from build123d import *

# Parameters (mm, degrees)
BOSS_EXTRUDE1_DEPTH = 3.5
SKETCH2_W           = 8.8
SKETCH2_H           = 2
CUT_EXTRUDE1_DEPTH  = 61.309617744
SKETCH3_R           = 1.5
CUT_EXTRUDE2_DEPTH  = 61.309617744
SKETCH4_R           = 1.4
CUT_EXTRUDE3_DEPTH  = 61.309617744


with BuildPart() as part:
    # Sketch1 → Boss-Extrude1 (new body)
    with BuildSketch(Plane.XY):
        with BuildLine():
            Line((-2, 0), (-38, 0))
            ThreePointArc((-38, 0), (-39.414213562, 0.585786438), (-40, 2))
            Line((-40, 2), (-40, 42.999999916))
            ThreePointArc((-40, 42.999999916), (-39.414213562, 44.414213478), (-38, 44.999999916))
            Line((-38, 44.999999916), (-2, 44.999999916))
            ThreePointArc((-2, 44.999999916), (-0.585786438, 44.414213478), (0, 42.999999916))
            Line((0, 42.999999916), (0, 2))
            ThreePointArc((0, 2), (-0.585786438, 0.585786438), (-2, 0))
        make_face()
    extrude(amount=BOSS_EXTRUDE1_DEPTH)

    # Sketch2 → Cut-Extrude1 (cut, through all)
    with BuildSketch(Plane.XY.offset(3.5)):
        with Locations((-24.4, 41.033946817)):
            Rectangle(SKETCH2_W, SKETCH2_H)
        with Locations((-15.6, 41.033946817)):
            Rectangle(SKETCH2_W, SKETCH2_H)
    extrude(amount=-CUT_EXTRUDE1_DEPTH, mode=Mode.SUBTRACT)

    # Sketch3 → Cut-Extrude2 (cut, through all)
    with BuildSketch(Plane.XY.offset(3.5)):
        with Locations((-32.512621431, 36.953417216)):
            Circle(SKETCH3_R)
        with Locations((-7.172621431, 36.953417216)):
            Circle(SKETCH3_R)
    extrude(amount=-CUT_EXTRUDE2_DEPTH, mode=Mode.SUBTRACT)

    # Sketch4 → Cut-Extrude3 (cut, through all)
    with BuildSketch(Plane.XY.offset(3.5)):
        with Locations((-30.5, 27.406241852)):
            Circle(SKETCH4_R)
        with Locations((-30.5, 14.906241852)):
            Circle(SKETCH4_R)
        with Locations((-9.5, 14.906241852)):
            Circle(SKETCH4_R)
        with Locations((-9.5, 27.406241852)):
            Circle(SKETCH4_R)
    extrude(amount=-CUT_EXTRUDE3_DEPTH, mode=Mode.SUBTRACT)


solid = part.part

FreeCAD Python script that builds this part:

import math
import FreeCAD as App
import Part
import Sketcher

V = App.Vector


def add_polygon(sketch, points):
    """Adds a closed chain of lines whose ends are joined by coincident constraints."""
    first, n = sketch.GeometryCount, len(points)
    for a, b in zip(points, points[1:] + points[:1]):
        sketch.addGeometry(Part.LineSegment(App.Vector(*a, 0), App.Vector(*b, 0)), False)
    for i in range(n):
        sketch.addConstraint(Sketcher.Constraint("Coincident", first + i, 2, first + (i + 1) % n, 1))

doc = App.newDocument("Part")
body = doc.addObject("PartDesign::Body", "Body")

# Sketch on XY plane
sketch1 = doc.addObject("Sketcher::SketchObject", "Sketch")
body.addObject(sketch1)
sketch1.AttachmentSupport = (doc.XY_Plane, [""])
sketch1.MapMode = "FlatFace"
sketch1.addGeometry([
    Part.LineSegment(V(-38, 0, 0), V(-2, 0, 0)),  # 0
    Part.ArcOfCircle(Part.Circle(V(-2, 2, 0), V(0, 0, 1), 2), math.radians(-90), math.radians(0)),  # 1
    Part.LineSegment(V(0, 2, 0), V(0, 43, 0)),  # 2
    Part.ArcOfCircle(Part.Circle(V(-2, 43, 0), V(0, 0, 1), 2), math.radians(0), math.radians(90)),  # 3
    Part.LineSegment(V(-2, 45, 0), V(-38, 45, 0)),  # 4
    Part.ArcOfCircle(Part.Circle(V(-38, 43, 0), V(0, 0, 1), 2), math.radians(90), math.radians(180)),  # 5
    Part.LineSegment(V(-40, 43, 0), V(-40, 2, 0)),  # 6
    Part.ArcOfCircle(Part.Circle(V(-38, 2, 0), V(0, 0, 1), 2), math.radians(-180), math.radians(-90)),  # 7
], False)
sketch1.addConstraint([
    Sketcher.Constraint("Tangent", 0, 2, 1, 1),
    Sketcher.Constraint("Tangent", 1, 2, 2, 1),
    Sketcher.Constraint("Tangent", 2, 2, 3, 1),
    Sketcher.Constraint("Tangent", 3, 2, 4, 1),
    Sketcher.Constraint("Tangent", 4, 2, 5, 1),
    Sketcher.Constraint("Tangent", 5, 2, 6, 1),
    Sketcher.Constraint("Tangent", 6, 2, 7, 1),
    Sketcher.Constraint("Tangent", 7, 2, 0, 1),
    Sketcher.Constraint("Horizontal", 0),
    Sketcher.Constraint("Vertical", 2),
    Sketcher.Constraint("Horizontal", 4),
    Sketcher.Constraint("Vertical", 6),
    Sketcher.Constraint("Equal", 1, 3),
    Sketcher.Constraint("Equal", 3, 5),
    Sketcher.Constraint("Equal", 5, 7),
    Sketcher.Constraint("PointOnObject", 0, 2, -1),
    Sketcher.Constraint("PointOnObject", 1, 2, -2),
    Sketcher.Constraint("Radius", 1, 2.0),
    Sketcher.Constraint("DistanceX", 0, 1, 0, 2, 36.0),
    Sketcher.Constraint("DistanceY", 2, 1, 2, 2, 41.0),
])
pad1 = doc.addObject("PartDesign::Pad", "Pad")
body.addObject(pad1)
pad1.Profile = sketch1
pad1.Length = 3.5

# Sketch on XY plane
sketch2 = doc.addObject("Sketcher::SketchObject", "Sketch001")
body.addObject(sketch2)
sketch2.AttachmentSupport = (doc.XY_Plane, [""])
sketch2.MapMode = "FlatFace"
sketch2.AttachmentOffset = App.Placement(V(0, 0, 3.5), App.Rotation())
add_polygon(sketch2, [(-28.8, 42), (-28.8, 40), (-11.2, 40), (-11.2, 42)])  # lines 0-3
sketch2.addConstraint([
    Sketcher.Constraint("Vertical", 0),
    Sketcher.Constraint("Horizontal", 1),
    Sketcher.Constraint("Vertical", 2),
    Sketcher.Constraint("Horizontal", 3),
    Sketcher.Constraint("DistanceY", 0, 2, 0, 1, 2.0),
    Sketcher.Constraint("DistanceX", 1, 1, 1, 2, 17.6),
    Sketcher.Constraint("DistanceX", 0, 2, -1, 1, 28.8),
    Sketcher.Constraint("DistanceY", -1, 1, 0, 2, 40.033947),
])
pocket1 = doc.addObject("PartDesign::Pocket", "Pocket")
body.addObject(pocket1)
pocket1.Profile = sketch2
pocket1.Type = "ThroughAll"

# Sketch on XY plane
sketch3 = doc.addObject("Sketcher::SketchObject", "Sketch002")
body.addObject(sketch3)
sketch3.AttachmentSupport = (doc.XY_Plane, [""])
sketch3.MapMode = "FlatFace"
sketch3.AttachmentOffset = App.Placement(V(0, 0, 3.5), App.Rotation())
sketch3.addGeometry([
    Part.Circle(V(-32.5, 37, 0), V(0, 0, 1), 1.5),
    Part.Circle(V(-7.2, 37, 0), V(0, 0, 1), 1.5),
], False)
sketch3.addConstraint([
    Sketcher.Constraint("Equal", 0, 1),
    Sketcher.Constraint("Horizontal", 0, 3, 1, 3),
    Sketcher.Constraint("Diameter", 0, 3.0),
    Sketcher.Constraint("DistanceX", 0, 3, 1, 3, 25.34),
    Sketcher.Constraint("DistanceX", 0, 3, -1, 1, 32.512621),
    Sketcher.Constraint("DistanceY", -1, 1, 0, 3, 36.953417),
])
pocket2 = doc.addObject("PartDesign::Pocket", "Pocket001")
body.addObject(pocket2)
pocket2.Profile = sketch3
pocket2.Type = "ThroughAll"

# Sketch on XY plane
sketch4 = doc.addObject("Sketcher::SketchObject", "Sketch003")
body.addObject(sketch4)
sketch4.AttachmentSupport = (doc.XY_Plane, [""])
sketch4.MapMode = "FlatFace"
sketch4.AttachmentOffset = App.Placement(V(0, 0, 3.5), App.Rotation())
sketch4.addGeometry([
    Part.Circle(V(-30.5, 27.4, 0), V(0, 0, 1), 1.4),
    Part.Circle(V(-30.5, 14.9, 0), V(0, 0, 1), 1.4),
    Part.Circle(V(-9.5, 14.9, 0), V(0, 0, 1), 1.4),
    Part.Circle(V(-9.5, 27.4, 0), V(0, 0, 1), 1.4),
], False)
sketch4.addConstraint([
    Sketcher.Constraint("Equal", 0, 1),
    Sketcher.Constraint("Equal", 1, 2),
    Sketcher.Constraint("Equal", 2, 3),
    Sketcher.Constraint("Horizontal", 1, 3, 2, 3),
    Sketcher.Constraint("Horizontal", 0, 3, 3, 3),
    Sketcher.Constraint("Vertical", 0, 3, 1, 3),
    Sketcher.Constraint("Vertical", 2, 3, 3, 3),
    Sketcher.Constraint("Diameter", 0, 2.8),
    Sketcher.Constraint("DistanceX", 1, 3, 2, 3, 21.0),
    Sketcher.Constraint("DistanceX", 0, 3, -1, 1, 30.5),
    Sketcher.Constraint("DistanceY", 1, 3, 0, 3, 12.5),
    Sketcher.Constraint("DistanceY", -1, 1, 0, 3, 27.406242),
])
pocket3 = doc.addObject("PartDesign::Pocket", "Pocket002")
body.addObject(pocket3)
pocket3.Profile = sketch4
pocket3.Type = "ThroughAll"

doc.recompute()
